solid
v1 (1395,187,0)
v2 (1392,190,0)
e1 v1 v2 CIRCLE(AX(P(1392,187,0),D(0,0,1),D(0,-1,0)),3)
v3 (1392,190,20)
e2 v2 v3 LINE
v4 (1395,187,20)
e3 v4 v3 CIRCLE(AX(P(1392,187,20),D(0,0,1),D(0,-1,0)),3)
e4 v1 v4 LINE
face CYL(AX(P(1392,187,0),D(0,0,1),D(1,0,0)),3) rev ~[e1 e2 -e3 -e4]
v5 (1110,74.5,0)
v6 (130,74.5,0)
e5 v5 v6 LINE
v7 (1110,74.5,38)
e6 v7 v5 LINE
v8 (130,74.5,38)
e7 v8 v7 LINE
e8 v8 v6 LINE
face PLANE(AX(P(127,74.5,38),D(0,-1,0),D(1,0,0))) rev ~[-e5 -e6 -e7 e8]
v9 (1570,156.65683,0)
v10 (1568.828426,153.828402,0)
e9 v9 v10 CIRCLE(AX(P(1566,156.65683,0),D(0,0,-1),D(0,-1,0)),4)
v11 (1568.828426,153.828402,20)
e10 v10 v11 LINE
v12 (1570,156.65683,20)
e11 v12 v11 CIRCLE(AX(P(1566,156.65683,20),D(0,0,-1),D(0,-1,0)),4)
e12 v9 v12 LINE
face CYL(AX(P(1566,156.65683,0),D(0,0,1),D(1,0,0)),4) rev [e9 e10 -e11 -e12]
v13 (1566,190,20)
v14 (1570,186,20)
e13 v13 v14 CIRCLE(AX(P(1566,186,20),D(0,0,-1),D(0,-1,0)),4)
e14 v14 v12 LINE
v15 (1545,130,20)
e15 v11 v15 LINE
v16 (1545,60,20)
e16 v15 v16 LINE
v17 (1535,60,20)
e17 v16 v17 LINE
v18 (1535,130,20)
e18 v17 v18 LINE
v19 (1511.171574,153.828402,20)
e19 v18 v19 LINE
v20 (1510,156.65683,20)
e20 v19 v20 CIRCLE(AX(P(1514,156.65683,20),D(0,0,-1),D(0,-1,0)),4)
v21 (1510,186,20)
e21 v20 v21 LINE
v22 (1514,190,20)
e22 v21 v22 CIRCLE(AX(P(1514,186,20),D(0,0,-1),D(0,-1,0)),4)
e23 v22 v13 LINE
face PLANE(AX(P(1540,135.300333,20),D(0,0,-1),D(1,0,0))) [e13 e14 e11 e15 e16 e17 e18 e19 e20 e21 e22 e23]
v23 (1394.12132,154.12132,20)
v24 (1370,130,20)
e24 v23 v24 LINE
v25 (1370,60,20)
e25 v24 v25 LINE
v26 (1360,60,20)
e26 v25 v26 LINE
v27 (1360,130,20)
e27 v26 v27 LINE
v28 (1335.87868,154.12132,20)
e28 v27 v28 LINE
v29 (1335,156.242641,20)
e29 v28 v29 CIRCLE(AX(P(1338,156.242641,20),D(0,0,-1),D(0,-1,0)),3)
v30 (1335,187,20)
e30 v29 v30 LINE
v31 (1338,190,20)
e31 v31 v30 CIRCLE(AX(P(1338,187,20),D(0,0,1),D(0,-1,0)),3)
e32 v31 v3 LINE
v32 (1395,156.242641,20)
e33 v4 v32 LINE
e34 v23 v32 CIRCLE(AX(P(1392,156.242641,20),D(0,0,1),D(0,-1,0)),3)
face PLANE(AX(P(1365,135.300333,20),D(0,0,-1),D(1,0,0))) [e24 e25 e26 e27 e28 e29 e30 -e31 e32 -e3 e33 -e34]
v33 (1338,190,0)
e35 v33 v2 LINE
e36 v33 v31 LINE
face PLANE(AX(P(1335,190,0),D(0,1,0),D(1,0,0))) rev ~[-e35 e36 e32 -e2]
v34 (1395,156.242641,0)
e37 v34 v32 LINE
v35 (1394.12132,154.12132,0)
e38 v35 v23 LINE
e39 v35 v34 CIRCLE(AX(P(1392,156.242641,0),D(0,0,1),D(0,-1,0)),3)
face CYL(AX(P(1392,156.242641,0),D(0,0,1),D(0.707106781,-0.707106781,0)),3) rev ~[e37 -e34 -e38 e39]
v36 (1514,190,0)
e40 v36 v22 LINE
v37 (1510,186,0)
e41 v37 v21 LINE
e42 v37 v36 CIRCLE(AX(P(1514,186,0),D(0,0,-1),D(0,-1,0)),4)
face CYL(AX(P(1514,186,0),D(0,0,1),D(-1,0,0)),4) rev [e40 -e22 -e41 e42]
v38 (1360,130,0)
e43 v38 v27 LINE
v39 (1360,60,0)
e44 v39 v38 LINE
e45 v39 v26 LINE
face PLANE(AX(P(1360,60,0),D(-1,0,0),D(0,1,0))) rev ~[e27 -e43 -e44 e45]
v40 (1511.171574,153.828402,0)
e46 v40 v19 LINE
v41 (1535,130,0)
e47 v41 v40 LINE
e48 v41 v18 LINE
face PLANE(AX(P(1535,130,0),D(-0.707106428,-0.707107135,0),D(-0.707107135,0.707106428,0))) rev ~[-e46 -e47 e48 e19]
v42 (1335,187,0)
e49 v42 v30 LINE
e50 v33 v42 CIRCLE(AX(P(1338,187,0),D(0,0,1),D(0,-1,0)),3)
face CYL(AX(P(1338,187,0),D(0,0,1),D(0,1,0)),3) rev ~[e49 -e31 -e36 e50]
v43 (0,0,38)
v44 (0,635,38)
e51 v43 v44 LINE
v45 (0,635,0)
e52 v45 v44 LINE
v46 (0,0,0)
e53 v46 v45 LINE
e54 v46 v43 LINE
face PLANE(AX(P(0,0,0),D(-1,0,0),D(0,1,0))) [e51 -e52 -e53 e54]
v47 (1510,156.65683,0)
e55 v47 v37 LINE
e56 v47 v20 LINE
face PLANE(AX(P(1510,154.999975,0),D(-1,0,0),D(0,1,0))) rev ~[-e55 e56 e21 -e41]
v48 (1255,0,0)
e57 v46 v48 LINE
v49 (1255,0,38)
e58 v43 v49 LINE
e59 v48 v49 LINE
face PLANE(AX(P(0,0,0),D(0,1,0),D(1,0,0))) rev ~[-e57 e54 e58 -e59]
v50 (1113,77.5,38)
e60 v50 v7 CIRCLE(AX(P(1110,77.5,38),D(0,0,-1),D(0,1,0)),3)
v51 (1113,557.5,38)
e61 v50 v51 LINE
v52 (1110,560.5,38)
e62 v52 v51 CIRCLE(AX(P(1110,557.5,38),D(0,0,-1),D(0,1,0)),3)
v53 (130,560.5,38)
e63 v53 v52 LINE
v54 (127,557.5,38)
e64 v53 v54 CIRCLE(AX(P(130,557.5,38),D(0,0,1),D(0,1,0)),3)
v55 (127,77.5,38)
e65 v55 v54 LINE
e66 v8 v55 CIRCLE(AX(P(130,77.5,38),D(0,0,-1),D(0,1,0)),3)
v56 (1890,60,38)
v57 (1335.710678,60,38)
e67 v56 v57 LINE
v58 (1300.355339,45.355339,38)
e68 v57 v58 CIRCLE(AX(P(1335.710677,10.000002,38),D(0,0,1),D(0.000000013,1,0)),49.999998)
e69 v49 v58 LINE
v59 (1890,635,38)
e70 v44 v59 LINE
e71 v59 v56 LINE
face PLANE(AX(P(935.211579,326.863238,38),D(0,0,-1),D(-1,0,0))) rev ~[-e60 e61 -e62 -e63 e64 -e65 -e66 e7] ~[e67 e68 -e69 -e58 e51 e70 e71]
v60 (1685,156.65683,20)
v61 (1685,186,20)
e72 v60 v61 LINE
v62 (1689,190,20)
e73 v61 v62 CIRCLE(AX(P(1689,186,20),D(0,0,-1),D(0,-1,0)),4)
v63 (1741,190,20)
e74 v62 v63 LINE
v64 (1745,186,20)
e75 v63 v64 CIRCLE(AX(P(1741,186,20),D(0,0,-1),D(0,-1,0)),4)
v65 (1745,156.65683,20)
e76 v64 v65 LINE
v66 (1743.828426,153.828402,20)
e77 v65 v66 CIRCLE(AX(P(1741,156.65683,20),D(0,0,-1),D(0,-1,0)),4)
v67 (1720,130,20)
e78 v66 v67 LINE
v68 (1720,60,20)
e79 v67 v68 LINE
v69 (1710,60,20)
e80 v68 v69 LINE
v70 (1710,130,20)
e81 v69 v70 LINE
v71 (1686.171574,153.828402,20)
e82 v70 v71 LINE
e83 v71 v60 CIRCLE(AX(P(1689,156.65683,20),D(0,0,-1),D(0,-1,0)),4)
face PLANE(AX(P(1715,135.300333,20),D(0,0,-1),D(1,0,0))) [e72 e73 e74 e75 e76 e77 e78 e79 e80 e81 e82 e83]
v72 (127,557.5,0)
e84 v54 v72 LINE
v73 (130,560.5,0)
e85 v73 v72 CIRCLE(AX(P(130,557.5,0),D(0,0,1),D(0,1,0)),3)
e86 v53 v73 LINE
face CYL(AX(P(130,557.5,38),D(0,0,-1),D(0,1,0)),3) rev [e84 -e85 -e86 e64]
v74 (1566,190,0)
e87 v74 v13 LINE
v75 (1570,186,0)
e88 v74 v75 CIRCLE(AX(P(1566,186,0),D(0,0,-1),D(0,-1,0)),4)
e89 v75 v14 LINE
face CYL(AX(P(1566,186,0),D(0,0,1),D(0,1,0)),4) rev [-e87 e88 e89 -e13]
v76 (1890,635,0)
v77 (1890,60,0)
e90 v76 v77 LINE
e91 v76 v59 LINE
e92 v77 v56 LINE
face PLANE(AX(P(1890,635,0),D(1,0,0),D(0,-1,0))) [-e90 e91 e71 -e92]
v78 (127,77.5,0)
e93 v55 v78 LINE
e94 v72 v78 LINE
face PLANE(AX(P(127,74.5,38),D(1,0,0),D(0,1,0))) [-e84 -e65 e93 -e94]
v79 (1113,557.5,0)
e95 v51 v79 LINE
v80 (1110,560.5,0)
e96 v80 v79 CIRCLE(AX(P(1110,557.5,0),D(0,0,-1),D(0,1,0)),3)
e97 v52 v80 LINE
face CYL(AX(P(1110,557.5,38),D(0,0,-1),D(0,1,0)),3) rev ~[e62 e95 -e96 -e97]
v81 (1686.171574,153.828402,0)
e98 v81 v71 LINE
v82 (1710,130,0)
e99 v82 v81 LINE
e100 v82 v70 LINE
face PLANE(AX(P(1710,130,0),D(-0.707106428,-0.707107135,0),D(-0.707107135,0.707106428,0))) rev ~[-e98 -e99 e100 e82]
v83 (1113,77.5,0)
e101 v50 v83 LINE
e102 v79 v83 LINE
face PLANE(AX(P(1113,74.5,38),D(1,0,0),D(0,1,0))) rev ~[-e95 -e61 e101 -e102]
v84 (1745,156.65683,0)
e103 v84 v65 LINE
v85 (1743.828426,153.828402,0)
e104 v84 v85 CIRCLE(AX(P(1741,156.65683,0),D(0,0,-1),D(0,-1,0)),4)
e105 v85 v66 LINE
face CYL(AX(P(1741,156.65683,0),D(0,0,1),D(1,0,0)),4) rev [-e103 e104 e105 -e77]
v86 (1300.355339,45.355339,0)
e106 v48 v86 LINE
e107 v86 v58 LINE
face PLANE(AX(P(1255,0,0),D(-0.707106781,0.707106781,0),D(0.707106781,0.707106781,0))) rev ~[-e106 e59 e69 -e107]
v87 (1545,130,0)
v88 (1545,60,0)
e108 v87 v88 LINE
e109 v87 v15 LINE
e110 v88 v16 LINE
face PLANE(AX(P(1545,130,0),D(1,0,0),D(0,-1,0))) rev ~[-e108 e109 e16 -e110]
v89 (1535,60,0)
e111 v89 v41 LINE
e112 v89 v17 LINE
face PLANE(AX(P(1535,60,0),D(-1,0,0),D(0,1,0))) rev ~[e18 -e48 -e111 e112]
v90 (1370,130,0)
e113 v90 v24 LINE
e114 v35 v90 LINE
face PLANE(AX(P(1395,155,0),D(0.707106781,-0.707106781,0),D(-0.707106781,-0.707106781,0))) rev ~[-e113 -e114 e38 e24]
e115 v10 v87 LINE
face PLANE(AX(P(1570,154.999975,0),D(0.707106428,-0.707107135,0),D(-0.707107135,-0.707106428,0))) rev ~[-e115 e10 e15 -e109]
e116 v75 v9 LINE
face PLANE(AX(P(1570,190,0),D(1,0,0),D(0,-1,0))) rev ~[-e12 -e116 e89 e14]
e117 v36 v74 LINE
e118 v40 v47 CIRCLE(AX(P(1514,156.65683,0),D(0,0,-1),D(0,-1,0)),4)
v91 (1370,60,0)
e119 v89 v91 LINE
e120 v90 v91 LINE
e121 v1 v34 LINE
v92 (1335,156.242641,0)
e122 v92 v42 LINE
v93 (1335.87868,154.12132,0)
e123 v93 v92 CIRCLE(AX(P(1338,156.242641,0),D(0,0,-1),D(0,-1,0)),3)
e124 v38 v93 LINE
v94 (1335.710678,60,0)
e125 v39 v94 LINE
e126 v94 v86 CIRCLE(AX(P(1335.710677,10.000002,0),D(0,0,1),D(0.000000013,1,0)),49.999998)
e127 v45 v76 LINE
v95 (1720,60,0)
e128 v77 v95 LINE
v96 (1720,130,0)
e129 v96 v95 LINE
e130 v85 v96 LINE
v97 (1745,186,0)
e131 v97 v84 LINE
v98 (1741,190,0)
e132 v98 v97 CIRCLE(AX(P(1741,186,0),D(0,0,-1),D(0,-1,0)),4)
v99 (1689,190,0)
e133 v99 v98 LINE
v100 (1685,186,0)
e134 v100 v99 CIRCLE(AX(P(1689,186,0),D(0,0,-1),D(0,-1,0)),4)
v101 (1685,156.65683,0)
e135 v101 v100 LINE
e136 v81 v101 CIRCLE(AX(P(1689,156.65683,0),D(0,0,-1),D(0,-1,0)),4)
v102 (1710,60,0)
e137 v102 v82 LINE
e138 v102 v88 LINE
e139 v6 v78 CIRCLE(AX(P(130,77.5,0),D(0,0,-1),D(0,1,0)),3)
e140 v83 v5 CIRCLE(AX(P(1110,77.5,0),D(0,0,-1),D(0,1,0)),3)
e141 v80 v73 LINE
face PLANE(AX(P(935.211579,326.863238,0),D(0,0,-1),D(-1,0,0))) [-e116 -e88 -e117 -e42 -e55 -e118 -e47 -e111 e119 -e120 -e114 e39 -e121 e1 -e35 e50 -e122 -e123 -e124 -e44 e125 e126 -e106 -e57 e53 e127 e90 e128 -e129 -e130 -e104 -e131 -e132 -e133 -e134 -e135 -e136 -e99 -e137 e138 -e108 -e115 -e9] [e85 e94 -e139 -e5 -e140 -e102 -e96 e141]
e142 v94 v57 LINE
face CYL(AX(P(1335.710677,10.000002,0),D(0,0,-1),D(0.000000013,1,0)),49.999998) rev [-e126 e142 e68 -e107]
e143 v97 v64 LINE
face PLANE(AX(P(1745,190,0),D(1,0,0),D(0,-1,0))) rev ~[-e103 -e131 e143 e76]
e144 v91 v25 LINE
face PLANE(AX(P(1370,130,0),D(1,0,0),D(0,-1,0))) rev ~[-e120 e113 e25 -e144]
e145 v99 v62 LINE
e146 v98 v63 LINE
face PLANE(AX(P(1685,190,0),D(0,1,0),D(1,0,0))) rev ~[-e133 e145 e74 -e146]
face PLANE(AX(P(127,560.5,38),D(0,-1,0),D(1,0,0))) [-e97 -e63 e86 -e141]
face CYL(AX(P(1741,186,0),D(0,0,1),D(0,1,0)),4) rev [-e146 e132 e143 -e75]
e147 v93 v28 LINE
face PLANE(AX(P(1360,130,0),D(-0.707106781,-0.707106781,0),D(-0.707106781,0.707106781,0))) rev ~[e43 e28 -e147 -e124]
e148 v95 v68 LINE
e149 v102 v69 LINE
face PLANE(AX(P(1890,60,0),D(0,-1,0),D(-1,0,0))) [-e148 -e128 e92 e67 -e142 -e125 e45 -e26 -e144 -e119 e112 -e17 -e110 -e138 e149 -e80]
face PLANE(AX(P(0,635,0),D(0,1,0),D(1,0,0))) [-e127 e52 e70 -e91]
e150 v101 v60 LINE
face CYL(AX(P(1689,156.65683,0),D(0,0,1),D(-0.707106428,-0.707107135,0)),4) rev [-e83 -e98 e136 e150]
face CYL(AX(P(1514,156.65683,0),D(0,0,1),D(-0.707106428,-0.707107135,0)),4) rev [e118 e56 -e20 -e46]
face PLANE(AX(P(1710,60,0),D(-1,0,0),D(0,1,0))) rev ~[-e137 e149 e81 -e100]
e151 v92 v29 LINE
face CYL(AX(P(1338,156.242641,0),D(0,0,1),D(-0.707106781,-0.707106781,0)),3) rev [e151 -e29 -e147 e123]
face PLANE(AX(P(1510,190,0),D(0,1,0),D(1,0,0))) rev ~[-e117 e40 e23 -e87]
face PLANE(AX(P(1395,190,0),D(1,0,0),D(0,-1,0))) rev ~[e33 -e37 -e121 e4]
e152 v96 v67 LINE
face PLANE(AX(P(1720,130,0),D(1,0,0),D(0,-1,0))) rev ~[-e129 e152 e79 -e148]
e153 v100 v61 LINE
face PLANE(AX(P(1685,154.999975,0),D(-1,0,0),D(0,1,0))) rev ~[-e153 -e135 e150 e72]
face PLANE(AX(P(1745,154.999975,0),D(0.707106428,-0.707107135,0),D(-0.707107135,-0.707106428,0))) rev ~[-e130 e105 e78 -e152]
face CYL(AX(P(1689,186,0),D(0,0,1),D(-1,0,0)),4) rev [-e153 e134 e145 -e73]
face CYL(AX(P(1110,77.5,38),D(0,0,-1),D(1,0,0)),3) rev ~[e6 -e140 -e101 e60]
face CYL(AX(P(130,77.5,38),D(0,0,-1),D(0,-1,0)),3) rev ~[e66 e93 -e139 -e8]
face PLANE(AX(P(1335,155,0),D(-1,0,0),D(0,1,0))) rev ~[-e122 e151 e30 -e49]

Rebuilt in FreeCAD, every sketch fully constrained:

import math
import FreeCAD as App
import Part
import Sketcher
from FreeCAD import Vector
Q = App.Units.Quantity


def edges_at(feature, points):
    """Names of the edges that pass closest to the given points."""
    edges = feature.Shape.Edges
    near = lambda p: min(range(len(edges)), key=lambda i: edges[i].distToShape(Part.Vertex(*p))[0])
    return sorted({f"Edge{near(p) + 1}" for p in points})

doc = App.newDocument("Part")
body = doc.addObject("PartDesign::Body", "Body")

# Sketch on XY plane
sketch1 = body.newObject("Sketcher::SketchObject", "Sketch")
sketch1.AttachmentSupport = (doc.getObject("XY_Plane"), [""])
sketch1.MapMode = "FlatFace"
sketch1.addGeometry([
    Part.LineSegment(Vector(0, 635, 0), Vector(0, 0, 0)),  # 0
    Part.LineSegment(Vector(0, 0, 0), Vector(1255, 0, 0)),  # 1
    Part.LineSegment(Vector(1255, 0, 0), Vector(1300, 45, 0)),  # 2
    Part.ArcOfCircle(Part.Circle(Vector(1336, 10, 0), Vector(0, 0, 1), 50), math.radians(90), math.radians(135)),  # 3
    Part.LineSegment(Vector(1336, 60, 0), Vector(1890, 60, 0)),  # 4
    Part.LineSegment(Vector(1890, 60, 0), Vector(1890, 635, 0)),  # 5
    Part.LineSegment(Vector(1890, 635, 0), Vector(0, 635, 0)),  # 6
], False)
sketch1.addConstraint([
    Sketcher.Constraint("Coincident", 0, 2, 1, 1),
    Sketcher.Constraint("Coincident", 1, 2, 2, 1),
    Sketcher.Constraint("Tangent", 2, 2, 3, 2),
    Sketcher.Constraint("Tangent", 3, 1, 4, 1),
    Sketcher.Constraint("Coincident", 4, 2, 5, 1),
    Sketcher.Constraint("Coincident", 5, 2, 6, 1),
    Sketcher.Constraint("Coincident", 6, 2, 0, 1),
    Sketcher.Constraint("Vertical", 0),
    Sketcher.Constraint("Horizontal", 1),
    Sketcher.Constraint("Horizontal", 4),
    Sketcher.Constraint("Vertical", 5),
    Sketcher.Constraint("Horizontal", 6),
    Sketcher.Constraint("Coincident", 0, 2, -1, 1),
    Sketcher.Constraint("Radius", 3, 49.999998),
    Sketcher.Constraint("DistanceX", 1, 1, 1, 2, 1255.0),
    Sketcher.Constraint("DistanceX", 6, 2, 6, 1, 1890.0),
    Sketcher.Constraint("DistanceY", 0, 2, 0, 1, 635.0),
    Sketcher.Constraint("DistanceY", 5, 1, 5, 2, 575.0),
    Sketcher.Constraint("Angle", 2, Q("45 deg")),
])
pad1 = body.newObject("PartDesign::Pad", "Pad")
pad1.Profile = sketch1
pad1.Length = 38

# Sketch on XY plane
sketch2 = body.newObject("Sketcher::SketchObject", "Sketch001")
sketch2.AttachmentSupport = (doc.getObject("XY_Plane"), [""])
sketch2.MapMode = "FlatFace"
sketch2.addGeometry([
    Part.LineSegment(Vector(1535, 60, 0), Vector(1535, 130, 0)),  # 0
    Part.LineSegment(Vector(1535, 130, 0), Vector(1510, 154.999975, 0)),  # 1
    Part.LineSegment(Vector(1510, 154.999975, 0), Vector(1510, 190, 0)),  # 2
    Part.LineSegment(Vector(1510, 190, 0), Vector(1570, 190, 0)),  # 3
    Part.LineSegment(Vector(1570, 190, 0), Vector(1570, 154.999975, 0)),  # 4
    Part.LineSegment(Vector(1570, 154.999975, 0), Vector(1545, 130, 0)),  # 5
    Part.LineSegment(Vector(1545, 130, 0), Vector(1545, 60, 0)),  # 6
    Part.LineSegment(Vector(1545, 60, 0), Vector(1535, 60, 0)),  # 7
    Part.LineSegment(Vector(1710, 60, 0), Vector(1710, 130, 0)),  # 8
    Part.LineSegment(Vector(1710, 130, 0), Vector(1685, 154.999975, 0)),  # 9
    Part.LineSegment(Vector(1685, 154.999975, 0), Vector(1685, 190, 0)),  # 10
    Part.LineSegment(Vector(1685, 190, 0), Vector(1745, 190, 0)),  # 11
    Part.LineSegment(Vector(1745, 190, 0), Vector(1745, 154.999975, 0)),  # 12
    Part.LineSegment(Vector(1745, 154.999975, 0), Vector(1720, 130, 0)),  # 13
    Part.LineSegment(Vector(1720, 130, 0), Vector(1720, 60, 0)),  # 14
    Part.LineSegment(Vector(1720, 60, 0), Vector(1710, 60, 0)),  # 15
    Part.LineSegment(Vector(1360, 60, 0), Vector(1360, 130, 0)),  # 16
    Part.LineSegment(Vector(1360, 130, 0), Vector(1335, 155, 0)),  # 17
    Part.LineSegment(Vector(1335, 155, 0), Vector(1335, 190, 0)),  # 18
    Part.LineSegment(Vector(1335, 190, 0), Vector(1395, 190, 0)),  # 19
    Part.LineSegment(Vector(1395, 190, 0), Vector(1395, 155, 0)),  # 20
    Part.LineSegment(Vector(1395, 155, 0), Vector(1370, 130, 0)),  # 21
    Part.LineSegment(Vector(1370, 130, 0), Vector(1370, 60, 0)),  # 22
    Part.LineSegment(Vector(1370, 60, 0), Vector(1360, 60, 0)),  # 23
], False)
sketch2.addConstraint([
    Sketcher.Constraint("Coincident", 0, 2, 1, 1),
    Sketcher.Constraint("Coincident", 1, 2, 2, 1),
    Sketcher.Constraint("Coincident", 2, 2, 3, 1),
    Sketcher.Constraint("Coincident", 3, 2, 4, 1),
    Sketcher.Constraint("Coincident", 4, 2, 5, 1),
    Sketcher.Constraint("Coincident", 5, 2, 6, 1),
    Sketcher.Constraint("Coincident", 6, 2, 7, 1),
    Sketcher.Constraint("Coincident", 7, 2, 0, 1),
    Sketcher.Constraint("Coincident", 8, 2, 9, 1),
    Sketcher.Constraint("Coincident", 9, 2, 10, 1),
    Sketcher.Constraint("Coincident", 10, 2, 11, 1),
    Sketcher.Constraint("Coincident", 11, 2, 12, 1),
    Sketcher.Constraint("Coincident", 12, 2, 13, 1),
    Sketcher.Constraint("Coincident", 13, 2, 14, 1),
    Sketcher.Constraint("Coincident", 14, 2, 15, 1),
    Sketcher.Constraint("Coincident", 15, 2, 8, 1),
    Sketcher.Constraint("Coincident", 16, 2, 17, 1),
    Sketcher.Constraint("Coincident", 17, 2, 18, 1),
    Sketcher.Constraint("Coincident", 18, 2, 19, 1),
    Sketcher.Constraint("Coincident", 19, 2, 20, 1),
    Sketcher.Constraint("Coincident", 20, 2, 21, 1),
    Sketcher.Constraint("Coincident", 21, 2, 22, 1),
    Sketcher.Constraint("Coincident", 22, 2, 23, 1),
    Sketcher.Constraint("Coincident", 23, 2, 16, 1),
    Sketcher.Constraint("Vertical", 0),
    Sketcher.Constraint("Vertical", 2),
    Sketcher.Constraint("Horizontal", 3),
    Sketcher.Constraint("Vertical", 4),
    Sketcher.Constraint("Vertical", 6),
    Sketcher.Constraint("Horizontal", 7),
    Sketcher.Constraint("Vertical", 8),
    Sketcher.Constraint("Vertical", 10),
    Sketcher.Constraint("Horizontal", 11),
    Sketcher.Constraint("Vertical", 12),
    Sketcher.Constraint("Vertical", 14),
    Sketcher.Constraint("Horizontal", 15),
    Sketcher.Constraint("Vertical", 16),
    Sketcher.Constraint("Vertical", 18),
    Sketcher.Constraint("Horizontal", 19),
    Sketcher.Constraint("Vertical", 20),
    Sketcher.Constraint("Vertical", 22),
    Sketcher.Constraint("Horizontal", 23),
    Sketcher.Constraint("Perpendicular", 1, 5),
    Sketcher.Constraint("Perpendicular", 5, 9),
    Sketcher.Constraint("Perpendicular", 9, 13),
    Sketcher.Constraint("Perpendicular", 13, 17),
    Sketcher.Constraint("Perpendicular", 17, 21),
    Sketcher.Constraint("Horizontal", 1, 2, 4, 2),
    Sketcher.Constraint("Horizontal", 0, 2, 5, 2),
    Sketcher.Constraint("Horizontal", 5, 2, 8, 2),
    Sketcher.Constraint("Horizontal", 4, 2, 9, 2),
    Sketcher.Constraint("Horizontal", 3, 2, 10, 2),
    Sketcher.Constraint("Horizontal", 9, 2, 12, 2),
    Sketcher.Constraint("Horizontal", 8, 2, 13, 2),
    Sketcher.Constraint("Horizontal", 7, 2, 14, 2),
    Sketcher.Constraint("Horizontal", 13, 2, 16, 2),
    Sketcher.Constraint("Horizontal", 11, 2, 18, 2),
    Sketcher.Constraint("Horizontal", 17, 2, 20, 2),
    Sketcher.Constraint("Horizontal", 16, 2, 21, 2),
    Sketcher.Constraint("Horizontal", 15, 2, 22, 2),
    Sketcher.Constraint("Equal", 3, 11),
    Sketcher.Constraint("Equal", 11, 19),
    Sketcher.Constraint("Equal", 15, 23),
    Sketcher.Constraint("Equal", 1, 5),
    Sketcher.Constraint("DistanceX", 3, 1, 3, 2, 60.0),
    Sketcher.Constraint("DistanceX", 7, 2, 7, 1, 10.0),
    Sketcher.Constraint("DistanceY", 0, 1, 0, 2, 70.0),
    Sketcher.Constraint("DistanceY", 18, 1, 18, 2, 35.0),
    Sketcher.Constraint("DistanceX", -1, 1, 0, 2, 1535.0),
    Sketcher.Constraint("DistanceY", -1, 1, 0, 2, 130.0),
    Sketcher.Constraint("DistanceX", -1, 1, 8, 2, 1710.0),
    Sketcher.Constraint("DistanceX", -1, 1, 16, 2, 1360.0),
])
pocket1 = body.newObject("PartDesign::Pocket", "Pocket")
pocket1.Profile = sketch2
pocket1.Length = 20
pocket1.Reversed = True
doc.recompute()

fillet = body.newObject("PartDesign::Fillet", "Fillet")
fillet.Base = (pocket1, edges_at(pocket1, [
    (1510, 155, 10),
    (1510, 190, 10),
    (1570, 190, 10),
    (1570, 155, 10),
]))
fillet.Radius = 4
doc.recompute()

fillet2 = body.newObject("PartDesign::Fillet", "Fillet001")
fillet2.Base = (fillet, edges_at(fillet, [
    (1685, 155, 10),
    (1685, 190, 10),
    (1745, 155, 10),
    (1745, 190, 10),
]))
fillet2.Radius = 4
doc.recompute()

fillet3 = body.newObject("PartDesign::Fillet", "Fillet002")
fillet3.Base = (fillet2, edges_at(fillet2, [
    (1335, 155, 10),
    (1335, 190, 10),
    (1395, 155, 10),
    (1395, 190, 10),
]))
fillet3.Radius = 3

# Sketch on XY plane
sketch3 = body.newObject("Sketcher::SketchObject", "Sketch002")
sketch3.AttachmentSupport = (doc.getObject("XY_Plane"), [""])
sketch3.MapMode = "FlatFace"
sketch3.AttachmentOffset = App.Placement(Vector(0, 0, 38), App.Rotation())
sketch3.addGeometry([
    Part.LineSegment(Vector(127, 560, 0), Vector(127, 74, 0)),
    Part.LineSegment(Vector(127, 74, 0), Vector(1113, 74, 0)),
    Part.LineSegment(Vector(1113, 74, 0), Vector(1113, 560, 0)),
    Part.LineSegment(Vector(1113, 560, 0), Vector(127, 560, 0)),
], False)
sketch3.addConstraint([
    Sketcher.Constraint("Coincident", 0, 2, 1, 1),
    Sketcher.Constraint("Coincident", 1, 2, 2, 1),
    Sketcher.Constraint("Coincident", 2, 2, 3, 1),
    Sketcher.Constraint("Coincident", 3, 2, 0, 1),
    Sketcher.Constraint("Vertical", 0),
    Sketcher.Constraint("Horizontal", 1),
    Sketcher.Constraint("Vertical", 2),
    Sketcher.Constraint("Horizontal", 3),
    Sketcher.Constraint("DistanceX", 1, 1, 1, 2, 986.0),
    Sketcher.Constraint("DistanceY", 0, 2, 0, 1, 486.0),
    Sketcher.Constraint("DistanceX", -1, 1, 0, 2, 127.0),
    Sketcher.Constraint("DistanceY", -1, 1, 0, 2, 74.5),
])
pocket2 = body.newObject("PartDesign::Pocket", "Pocket001")
pocket2.Profile = sketch3
pocket2.Type = "ThroughAll"
doc.recompute()

fillet4 = body.newObject("PartDesign::Fillet", "Fillet003")
fillet4.Base = (pocket2, edges_at(pocket2, [
    (1113, 74.5, 19),
    (127, 560.5, 19),
    (127, 74.5, 19),
    (1113, 560.5, 19),
]))
fillet4.Radius = 3

doc.recompute()
